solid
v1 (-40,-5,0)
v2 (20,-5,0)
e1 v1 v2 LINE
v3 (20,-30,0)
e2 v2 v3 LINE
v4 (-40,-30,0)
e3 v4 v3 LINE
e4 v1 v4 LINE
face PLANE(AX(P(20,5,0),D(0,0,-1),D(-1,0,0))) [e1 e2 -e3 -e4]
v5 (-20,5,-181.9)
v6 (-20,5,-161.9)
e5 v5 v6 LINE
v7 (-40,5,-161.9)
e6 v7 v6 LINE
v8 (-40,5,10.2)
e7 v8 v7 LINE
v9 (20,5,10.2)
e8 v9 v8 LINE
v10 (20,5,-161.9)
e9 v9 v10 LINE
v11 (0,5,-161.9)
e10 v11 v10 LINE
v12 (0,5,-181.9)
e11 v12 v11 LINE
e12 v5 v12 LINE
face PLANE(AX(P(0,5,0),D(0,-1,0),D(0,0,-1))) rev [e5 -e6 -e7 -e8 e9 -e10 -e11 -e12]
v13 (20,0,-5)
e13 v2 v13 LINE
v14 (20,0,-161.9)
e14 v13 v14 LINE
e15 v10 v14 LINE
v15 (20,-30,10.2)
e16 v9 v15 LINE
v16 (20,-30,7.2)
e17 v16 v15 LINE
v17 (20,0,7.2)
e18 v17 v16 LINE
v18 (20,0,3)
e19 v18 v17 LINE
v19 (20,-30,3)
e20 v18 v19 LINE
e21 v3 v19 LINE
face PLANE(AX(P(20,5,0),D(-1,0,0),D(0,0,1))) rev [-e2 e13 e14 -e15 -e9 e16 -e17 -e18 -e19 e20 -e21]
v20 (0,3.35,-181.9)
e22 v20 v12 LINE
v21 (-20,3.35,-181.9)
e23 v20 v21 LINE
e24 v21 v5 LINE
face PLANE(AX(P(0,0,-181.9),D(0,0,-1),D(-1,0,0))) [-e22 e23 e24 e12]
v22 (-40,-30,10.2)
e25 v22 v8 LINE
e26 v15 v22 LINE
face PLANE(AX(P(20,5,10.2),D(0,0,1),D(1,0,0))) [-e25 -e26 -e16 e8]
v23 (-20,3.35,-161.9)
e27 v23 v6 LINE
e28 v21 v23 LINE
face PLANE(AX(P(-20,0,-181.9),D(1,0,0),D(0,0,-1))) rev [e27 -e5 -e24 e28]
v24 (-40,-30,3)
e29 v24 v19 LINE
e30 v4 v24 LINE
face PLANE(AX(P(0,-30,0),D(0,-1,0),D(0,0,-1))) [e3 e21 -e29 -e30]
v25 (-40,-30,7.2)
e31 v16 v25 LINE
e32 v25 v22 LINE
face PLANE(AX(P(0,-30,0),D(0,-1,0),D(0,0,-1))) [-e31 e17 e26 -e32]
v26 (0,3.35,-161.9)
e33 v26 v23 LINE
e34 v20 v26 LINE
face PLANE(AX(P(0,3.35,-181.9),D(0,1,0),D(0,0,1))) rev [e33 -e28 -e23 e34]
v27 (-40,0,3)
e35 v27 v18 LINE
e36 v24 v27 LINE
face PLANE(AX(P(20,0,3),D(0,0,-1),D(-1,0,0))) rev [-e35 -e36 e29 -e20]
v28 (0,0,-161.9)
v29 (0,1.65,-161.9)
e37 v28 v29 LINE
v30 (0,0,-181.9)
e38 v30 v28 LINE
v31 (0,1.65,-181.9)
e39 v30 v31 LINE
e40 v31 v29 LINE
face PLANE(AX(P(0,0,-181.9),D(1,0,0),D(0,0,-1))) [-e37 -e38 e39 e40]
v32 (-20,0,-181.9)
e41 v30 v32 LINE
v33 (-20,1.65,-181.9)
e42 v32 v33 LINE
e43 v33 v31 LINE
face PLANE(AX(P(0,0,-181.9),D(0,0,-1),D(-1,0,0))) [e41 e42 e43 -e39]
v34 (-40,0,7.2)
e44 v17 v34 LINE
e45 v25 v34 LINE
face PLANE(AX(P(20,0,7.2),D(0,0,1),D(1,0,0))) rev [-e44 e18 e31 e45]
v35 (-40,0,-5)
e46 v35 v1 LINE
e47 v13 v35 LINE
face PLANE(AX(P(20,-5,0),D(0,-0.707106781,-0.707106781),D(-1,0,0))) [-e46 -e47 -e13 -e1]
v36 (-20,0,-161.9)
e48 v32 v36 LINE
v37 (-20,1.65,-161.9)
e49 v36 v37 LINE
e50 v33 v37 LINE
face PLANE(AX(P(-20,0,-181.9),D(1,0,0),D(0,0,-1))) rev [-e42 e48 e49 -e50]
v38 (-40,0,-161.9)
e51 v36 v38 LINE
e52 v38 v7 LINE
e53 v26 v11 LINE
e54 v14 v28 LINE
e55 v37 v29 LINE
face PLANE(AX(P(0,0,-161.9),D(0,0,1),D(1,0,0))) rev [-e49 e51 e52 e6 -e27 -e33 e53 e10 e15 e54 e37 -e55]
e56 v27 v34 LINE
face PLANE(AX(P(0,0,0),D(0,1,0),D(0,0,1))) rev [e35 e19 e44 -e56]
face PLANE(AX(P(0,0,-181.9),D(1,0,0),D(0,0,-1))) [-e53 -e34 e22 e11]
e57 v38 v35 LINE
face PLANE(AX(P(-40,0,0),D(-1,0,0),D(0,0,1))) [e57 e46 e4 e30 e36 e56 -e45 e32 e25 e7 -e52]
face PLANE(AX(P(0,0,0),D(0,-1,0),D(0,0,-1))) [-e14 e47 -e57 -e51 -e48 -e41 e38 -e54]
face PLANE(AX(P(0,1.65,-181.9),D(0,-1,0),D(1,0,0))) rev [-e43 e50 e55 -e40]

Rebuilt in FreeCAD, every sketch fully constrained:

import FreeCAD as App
import Part
import Sketcher


def edges_at(feature, points):
    """Names of the edges that pass closest to the given points."""
    edges = feature.Shape.Edges
    near = lambda p: min(range(len(edges)), key=lambda i: edges[i].distToShape(Part.Vertex(*p))[0])
    return sorted({f"Edge{near(p) + 1}" for p in points})


def add_polygon(sketch, points):
    """Adds a closed chain of lines whose ends are joined by coincident constraints."""
    first, n = sketch.GeometryCount, len(points)
    for a, b in zip(points, points[1:] + points[:1]):
        sketch.addGeometry(Part.LineSegment(App.Vector(*a, 0), App.Vector(*b, 0)), False)
    for i in range(n):
        sketch.addConstraint(Sketcher.Constraint("Coincident", first + i, 2, first + (i + 1) % n, 1))

doc = App.newDocument("Part")
body = doc.addObject("PartDesign::Body", "Body")

# Sketch on XZ plane
sketch1 = body.newObject("Sketcher::SketchObject", "Sketch")
sketch1.AttachmentSupport = (doc.getObject("XZ_Plane"), [""])
sketch1.MapMode = "FlatFace"
add_polygon(sketch1, [(0, -80), (0, 0), (20, 0), (20, -80)])  # lines 0-3
sketch1.addConstraint(Sketcher.Constraint("Vertical", 0))
sketch1.addConstraint(Sketcher.Constraint("Horizontal", 1))
sketch1.addConstraint(Sketcher.Constraint("Vertical", 2))
sketch1.addConstraint(Sketcher.Constraint("Horizontal", 3))
sketch1.addConstraint(Sketcher.Constraint("Coincident", 0, 2, -1, 1))
sketch1.addConstraint(Sketcher.Constraint("DistanceX", 1, 1, 1, 2, 20.0))
sketch1.addConstraint(Sketcher.Constraint("DistanceY", 0, 1, 0, 2, 80.0))
pad1 = body.newObject("PartDesign::Pad", "Pad")
pad1.Profile = sketch1
pad1.Length = 5
pad1.Reversed = True

# Sketch on XZ plane
sketch2 = body.newObject("Sketcher::SketchObject", "Sketch001")
sketch2.AttachmentSupport = (doc.getObject("XZ_Plane"), [""])
sketch2.MapMode = "FlatFace"
add_polygon(sketch2, [(0, 10), (0, 0), (20, 0), (20, 10)])  # lines 0-3
sketch2.addConstraint(Sketcher.Constraint("Vertical", 0))
sketch2.addConstraint(Sketcher.Constraint("Horizontal", 1))
sketch2.addConstraint(Sketcher.Constraint("Vertical", 2))
sketch2.addConstraint(Sketcher.Constraint("Horizontal", 3))
sketch2.addConstraint(Sketcher.Constraint("Coincident", 0, 2, -1, 1))
sketch2.addConstraint(Sketcher.Constraint("DistanceX", 1, 1, 1, 2, 20.0))
sketch2.addConstraint(Sketcher.Constraint("DistanceY", 0, 2, 0, 1, 10.2))
pad2 = body.newObject("PartDesign::Pad", "Pad001")
pad2.Profile = sketch2
pad2.Type = "TwoLengths"
pad2.Length = 30
pad2.Length2 = 5

# Sketch on XZ plane
sketch3 = body.newObject("Sketcher::SketchObject", "Sketch002")
sketch3.AttachmentSupport = (doc.getObject("XZ_Plane"), [""])
sketch3.MapMode = "FlatFace"
sketch3.AttachmentOffset = App.Placement(App.Vector(0, 0, 30), App.Rotation())
add_polygon(sketch3, [(0, 7.2), (0, 3), (20, 3), (20, 7.2)])  # lines 0-3
sketch3.addConstraint(Sketcher.Constraint("Vertical", 0))
sketch3.addConstraint(Sketcher.Constraint("Horizontal", 1))
sketch3.addConstraint(Sketcher.Constraint("Vertical", 2))
sketch3.addConstraint(Sketcher.Constraint("Horizontal", 3))
sketch3.addConstraint(Sketcher.Constraint("PointOnObject", 0, 2, -2))
sketch3.addConstraint(Sketcher.Constraint("DistanceX", 1, 1, 1, 2, 20.0))
sketch3.addConstraint(Sketcher.Constraint("DistanceY", 0, 2, 0, 1, 4.2))
sketch3.addConstraint(Sketcher.Constraint("DistanceY", -1, 1, 0, 2, 3.0))
pocket1 = body.newObject("PartDesign::Pocket", "Pocket")
pocket1.Profile = sketch3
pocket1.Length = 30

# Sketch on YZ plane
sketch4 = body.newObject("Sketcher::SketchObject", "Sketch003")
sketch4.AttachmentSupport = (doc.getObject("YZ_Plane"), [""])
sketch4.MapMode = "FlatFace"
add_polygon(sketch4, [(0, 3), (0, 7.2), (-30, 7.2), (-30, 10.2), (5, 10.2), (5, -80), (0, -80), (0, 0), (-30, 0), (-30, 3)])  # lines 0-9
sketch4.addConstraint(Sketcher.Constraint("Vertical", 0))
sketch4.addConstraint(Sketcher.Constraint("Horizontal", 1))
sketch4.addConstraint(Sketcher.Constraint("Vertical", 2))
sketch4.addConstraint(Sketcher.Constraint("Horizontal", 3))
sketch4.addConstraint(Sketcher.Constraint("Vertical", 4))
sketch4.addConstraint(Sketcher.Constraint("Horizontal", 5))
sketch4.addConstraint(Sketcher.Constraint("Vertical", 6))
sketch4.addConstraint(Sketcher.Constraint("Horizontal", 7))
sketch4.addConstraint(Sketcher.Constraint("Vertical", 8))
sketch4.addConstraint(Sketcher.Constraint("Horizontal", 9))
sketch4.addConstraint(Sketcher.Constraint("Coincident", 6, 2, -1, 1))
sketch4.addConstraint(Sketcher.Constraint("PointOnObject", 0, 2, -2))
sketch4.addConstraint(Sketcher.Constraint("Vertical", 2, 2, 7, 2))
sketch4.addConstraint(Sketcher.Constraint("Equal", 2, 8))
sketch4.addConstraint(Sketcher.Constraint("DistanceX", 1, 2, 1, 1, 30.0))
sketch4.addConstraint(Sketcher.Constraint("DistanceX", 3, 1, 3, 2, 35.0))
sketch4.addConstraint(Sketcher.Constraint("DistanceY", 2, 1, 2, 2, 3.0))
sketch4.addConstraint(Sketcher.Constraint("DistanceY", 6, 1, 6, 2, 80.0))
sketch4.addConstraint(Sketcher.Constraint("DistanceY", 0, 1, 0, 2, 4.2))
pad3 = body.newObject("PartDesign::Pad", "Pad002")
pad3.Profile = sketch4
pad3.Length = 40
pad3.Reversed = True

# Sketch on XY plane
sketch5 = body.newObject("Sketcher::SketchObject", "Sketch004")
sketch5.AttachmentSupport = (doc.getObject("XY_Plane"), [""])
sketch5.MapMode = "FlatFace"
sketch5.AttachmentOffset = App.Placement(App.Vector(0, 0, -80), App.Rotation())
add_polygon(sketch5, [(20, 5), (20, 0), (-40, 0), (-40, 5)])  # lines 0-3
sketch5.addConstraint(Sketcher.Constraint("Vertical", 0))
sketch5.addConstraint(Sketcher.Constraint("Horizontal", 1))
sketch5.addConstraint(Sketcher.Constraint("Vertical", 2))
sketch5.addConstraint(Sketcher.Constraint("Horizontal", 3))
sketch5.addConstraint(Sketcher.Constraint("PointOnObject", 0, 2, -1))
sketch5.addConstraint(Sketcher.Constraint("DistanceX", 1, 2, 1, 1, 60.0))
sketch5.addConstraint(Sketcher.Constraint("DistanceY", 0, 2, 0, 1, 5.0))
sketch5.addConstraint(Sketcher.Constraint("DistanceX", -1, 1, 0, 2, 20.0))
pad4 = body.newObject("PartDesign::Pad", "Pad003")
pad4.Profile = sketch5
pad4.Length = 81.9
pad4.Reversed = True

# Sketch on XY plane
sketch6 = body.newObject("Sketcher::SketchObject", "Sketch005")
sketch6.AttachmentSupport = (doc.getObject("XY_Plane"), [""])
sketch6.MapMode = "FlatFace"
sketch6.AttachmentOffset = App.Placement(App.Vector(0, 0, -161.9), App.Rotation())
add_polygon(sketch6, [(0, 5), (0, 3.4), (-20, 3.4), (-20, 5)])  # lines 0-3
add_polygon(sketch6, [(0, 1.6), (0, 0), (-20, 0), (-20, 1.6)])  # lines 4-7
sketch6.addConstraint(Sketcher.Constraint("Vertical", 0))
sketch6.addConstraint(Sketcher.Constraint("Horizontal", 1))
sketch6.addConstraint(Sketcher.Constraint("Vertical", 2))
sketch6.addConstraint(Sketcher.Constraint("Horizontal", 3))
sketch6.addConstraint(Sketcher.Constraint("Vertical", 4))
sketch6.addConstraint(Sketcher.Constraint("Horizontal", 5))
sketch6.addConstraint(Sketcher.Constraint("Vertical", 6))
sketch6.addConstraint(Sketcher.Constraint("Horizontal", 7))
sketch6.addConstraint(Sketcher.Constraint("Coincident", 4, 2, -1, 1))
sketch6.addConstraint(Sketcher.Constraint("PointOnObject", 0, 2, -2))
sketch6.addConstraint(Sketcher.Constraint("Vertical", 2, 2, 5, 2))
sketch6.addConstraint(Sketcher.Constraint("Equal", 2, 4))
sketch6.addConstraint(Sketcher.Constraint("DistanceX", 1, 2, 1, 1, 20.0))
sketch6.addConstraint(Sketcher.Constraint("DistanceY", -1, 1, 2, 2, 5.0))
sketch6.addConstraint(Sketcher.Constraint("DistanceY", 0, 2, 0, 1, 1.65))
pad5 = body.newObject("PartDesign::Pad", "Pad004")
pad5.Profile = sketch6
pad5.Length = 20
pad5.Reversed = True
doc.recompute()

chamfer = body.newObject("PartDesign::Chamfer", "Chamfer")
chamfer.Base = (pad5, edges_at(pad5, [(-10, 0, 0)]))
chamfer.Size = 5

doc.recompute()
